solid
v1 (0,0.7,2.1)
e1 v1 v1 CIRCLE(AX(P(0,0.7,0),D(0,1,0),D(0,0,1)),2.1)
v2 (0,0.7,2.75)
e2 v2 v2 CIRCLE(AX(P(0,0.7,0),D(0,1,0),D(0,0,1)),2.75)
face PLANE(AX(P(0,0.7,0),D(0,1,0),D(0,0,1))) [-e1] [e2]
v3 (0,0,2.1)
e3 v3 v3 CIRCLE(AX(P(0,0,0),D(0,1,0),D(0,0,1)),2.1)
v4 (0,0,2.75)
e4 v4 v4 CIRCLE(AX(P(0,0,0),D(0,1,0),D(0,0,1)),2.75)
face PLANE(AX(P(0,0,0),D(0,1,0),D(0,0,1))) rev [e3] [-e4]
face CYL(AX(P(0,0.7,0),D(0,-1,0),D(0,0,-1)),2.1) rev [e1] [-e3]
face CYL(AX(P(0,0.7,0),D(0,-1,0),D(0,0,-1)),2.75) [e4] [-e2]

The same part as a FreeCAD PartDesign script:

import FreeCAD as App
import Part
import Sketcher
from FreeCAD import Vector

doc = App.newDocument("Part")
body = doc.addObject("PartDesign::Body", "Body")

# Sketch on XZ plane
sketch1 = body.newObject("Sketcher::SketchObject", "Sketch")
sketch1.AttachmentSupport = (doc.getObject("XZ_Plane"), [""])
sketch1.MapMode = "FlatFace"
sketch1.addGeometry([
    Part.Circle(Vector(0, 0, 0), Vector(0, 0, 1), 2.8),
    Part.Circle(Vector(0, 0, 0), Vector(0, 0, 1), 2.1),
], False)
sketch1.addConstraint([
    Sketcher.Constraint("Coincident", 0, 3, -1, 1),
    Sketcher.Constraint("Coincident", 1, 3, -1, 1),
    Sketcher.Constraint("Diameter", 0, 5.5),
    Sketcher.Constraint("Diameter", 1, 4.2),
])
pad1 = body.newObject("PartDesign::Pad", "Pad")
pad1.Profile = sketch1
pad1.Length = 0.7
pad1.Reversed = True

doc.recompute()
